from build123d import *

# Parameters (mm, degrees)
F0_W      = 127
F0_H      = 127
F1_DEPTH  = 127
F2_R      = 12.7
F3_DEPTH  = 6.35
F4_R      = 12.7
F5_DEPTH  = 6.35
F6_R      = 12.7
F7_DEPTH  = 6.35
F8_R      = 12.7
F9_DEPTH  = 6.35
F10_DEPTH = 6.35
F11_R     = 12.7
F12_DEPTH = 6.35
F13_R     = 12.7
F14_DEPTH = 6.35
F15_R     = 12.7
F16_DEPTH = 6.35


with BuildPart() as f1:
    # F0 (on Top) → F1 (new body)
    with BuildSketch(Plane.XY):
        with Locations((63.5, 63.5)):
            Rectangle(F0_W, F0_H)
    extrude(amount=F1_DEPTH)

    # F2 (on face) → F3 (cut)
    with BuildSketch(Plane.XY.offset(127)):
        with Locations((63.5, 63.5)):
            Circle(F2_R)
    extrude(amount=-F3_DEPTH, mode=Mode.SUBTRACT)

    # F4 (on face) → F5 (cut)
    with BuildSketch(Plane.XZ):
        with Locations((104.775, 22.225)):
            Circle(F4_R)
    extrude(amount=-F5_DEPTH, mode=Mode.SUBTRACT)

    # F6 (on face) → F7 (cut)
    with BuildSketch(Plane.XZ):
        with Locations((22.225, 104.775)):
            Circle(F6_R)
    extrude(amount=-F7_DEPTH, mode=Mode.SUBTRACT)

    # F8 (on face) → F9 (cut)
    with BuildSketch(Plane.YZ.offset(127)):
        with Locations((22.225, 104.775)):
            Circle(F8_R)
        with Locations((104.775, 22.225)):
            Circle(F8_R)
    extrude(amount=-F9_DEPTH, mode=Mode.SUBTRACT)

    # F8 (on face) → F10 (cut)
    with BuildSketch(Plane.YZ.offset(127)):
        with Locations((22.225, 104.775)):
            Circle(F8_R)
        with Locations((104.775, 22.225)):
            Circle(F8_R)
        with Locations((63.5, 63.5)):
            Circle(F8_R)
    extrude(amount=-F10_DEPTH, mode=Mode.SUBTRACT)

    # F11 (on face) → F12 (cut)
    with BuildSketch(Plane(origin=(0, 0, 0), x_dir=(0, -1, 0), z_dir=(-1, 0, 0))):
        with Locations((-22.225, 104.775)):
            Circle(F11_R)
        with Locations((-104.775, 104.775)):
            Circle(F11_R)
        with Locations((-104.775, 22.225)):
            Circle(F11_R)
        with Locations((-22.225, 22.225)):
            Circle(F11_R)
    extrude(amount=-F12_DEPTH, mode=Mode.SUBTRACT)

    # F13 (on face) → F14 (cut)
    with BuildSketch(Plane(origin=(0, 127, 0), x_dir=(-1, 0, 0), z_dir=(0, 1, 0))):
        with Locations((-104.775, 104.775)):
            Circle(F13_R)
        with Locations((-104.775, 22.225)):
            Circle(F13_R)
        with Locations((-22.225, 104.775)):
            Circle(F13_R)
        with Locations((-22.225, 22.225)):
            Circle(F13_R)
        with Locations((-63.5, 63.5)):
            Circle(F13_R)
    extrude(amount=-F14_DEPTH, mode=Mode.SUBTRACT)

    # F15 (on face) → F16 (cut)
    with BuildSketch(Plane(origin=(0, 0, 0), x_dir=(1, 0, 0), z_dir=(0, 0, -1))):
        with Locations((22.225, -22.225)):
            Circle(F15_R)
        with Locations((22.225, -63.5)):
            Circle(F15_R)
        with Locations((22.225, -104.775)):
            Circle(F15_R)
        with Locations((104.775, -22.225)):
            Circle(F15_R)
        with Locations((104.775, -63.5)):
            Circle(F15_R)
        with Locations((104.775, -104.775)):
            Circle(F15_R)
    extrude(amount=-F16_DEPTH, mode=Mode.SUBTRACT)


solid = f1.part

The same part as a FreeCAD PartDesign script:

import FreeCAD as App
import Part
import Sketcher

V = App.Vector
Q = App.Units.Quantity


def add_polygon(sketch, points):
    """Adds a closed chain of lines whose ends are joined by coincident constraints."""
    first, n = sketch.GeometryCount, len(points)
    for a, b in zip(points, points[1:] + points[:1]):
        sketch.addGeometry(Part.LineSegment(App.Vector(*a, 0), App.Vector(*b, 0)), False)
    for i in range(n):
        sketch.addConstraint(Sketcher.Constraint("Coincident", first + i, 2, first + (i + 1) % n, 1))

doc = App.newDocument("Part")
params = doc.addObject("Spreadsheet::Sheet", "Params")
for row, (alias, value) in enumerate([
    ("sketch1_width", "5 in"),
    ("pad1_length", "5 in"),
    ("sketch2_diameter", "1 in"),
    ("pocket1_length", "0.25 in"),
    ("sketch3_diameter", "1 in"),
    ("pocket2_length", "0.25 in"),
    ("sketch4_diameter", "1 in"),
    ("pocket3_length", "0.25 in"),
    ("sketch5_diameter", "1 in"),
    ("pocket4_length", "0.25 in"),
    ("sketch6_diameter", "1 in"),
    ("pocket5_length", "0.25 in"),
    ("sketch7_diameter", "1 in"),
    ("pocket6_length", "0.25 in"),
    ("sketch8_diameter", "1 in"),
    ("pocket7_length", "0.25 in"),
    ("sketch9_diameter", "1 in"),
    ("pocket8_length", "0.25 in"),
], start=1):
    params.set(f"A{row}", alias)
    params.set(f"B{row}", "=" + value)
    params.setAlias(f"B{row}", alias)

body = doc.addObject("PartDesign::Body", "Body")

# Sketch on XY plane
sketch1 = doc.addObject("Sketcher::SketchObject", "Sketch")
body.addObject(sketch1)
sketch1.AttachmentSupport = (doc.XY_Plane, [""])
sketch1.MapMode = "FlatFace"
add_polygon(sketch1, [(0, 127), (0, 0), (127, 0), (127, 127)])  # lines 0-3
sketch1.addConstraint([
    Sketcher.Constraint("Vertical", 0),
    Sketcher.Constraint("Horizontal", 1),
    Sketcher.Constraint("Vertical", 2),
    Sketcher.Constraint("Horizontal", 3),
    Sketcher.Constraint("Coincident", 0, 2, -1, 1),
    Sketcher.Constraint("Equal", 3, 0),
    Sketcher.Constraint("DistanceX", 1, 1, 1, 2, Q("5 in")),
])
sketch1.setExpression("Constraints[10]", "Params.sketch1_width")
pad1 = doc.addObject("PartDesign::Pad", "Pad")
body.addObject(pad1)
pad1.Profile = sketch1
pad1.setExpression("Length", "Params.pad1_length")

# Sketch on XY plane
sketch2 = doc.addObject("Sketcher::SketchObject", "Sketch001")
body.addObject(sketch2)
sketch2.AttachmentSupport = (doc.XY_Plane, [""])
sketch2.MapMode = "FlatFace"
sketch2.AttachmentOffset = App.Placement(V(0, 0, 5 * 25.4), App.Rotation())
sketch2.addGeometry(Part.Circle(V(64, 64, 0), V(0, 0, 1), 13), False)
sketch2.addConstraint([
    Sketcher.Constraint("Diameter", 0, Q("1 in")),
    Sketcher.Constraint("DistanceX", -1, 1, 0, 3, Q("2.5 in")),
    Sketcher.Constraint("DistanceY", -1, 1, 0, 3, Q("2.5 in")),
])
sketch2.setExpression("Constraints[0]", "Params.sketch2_diameter")
pocket1 = doc.addObject("PartDesign::Pocket", "Pocket")
body.addObject(pocket1)
pocket1.Profile = sketch2
pocket1.setExpression("Length", "Params.pocket1_length")

# Sketch on XZ plane
sketch3 = doc.addObject("Sketcher::SketchObject", "Sketch002")
body.addObject(sketch3)
sketch3.AttachmentSupport = (doc.XZ_Plane, [""])
sketch3.MapMode = "FlatFace"
sketch3.addGeometry(Part.Circle(V(105, 22, 0), V(0, 0, 1), 13), False)
sketch3.addConstraint([
    Sketcher.Constraint("Diameter", 0, Q("1 in")),
    Sketcher.Constraint("DistanceX", -1, 1, 0, 3, Q("4.125 in")),
    Sketcher.Constraint("DistanceY", -1, 1, 0, 3, Q("0.875 in")),
])
sketch3.setExpression("Constraints[0]", "Params.sketch3_diameter")
pocket2 = doc.addObject("PartDesign::Pocket", "Pocket001")
body.addObject(pocket2)
pocket2.Profile = sketch3
pocket2.setExpression("Length", "Params.pocket2_length")

# Sketch on XZ plane
sketch4 = doc.addObject("Sketcher::SketchObject", "Sketch003")
body.addObject(sketch4)
sketch4.AttachmentSupport = (doc.XZ_Plane, [""])
sketch4.MapMode = "FlatFace"
sketch4.addGeometry(Part.Circle(V(22, 105, 0), V(0, 0, 1), 13), False)
sketch4.addConstraint([
    Sketcher.Constraint("Diameter", 0, Q("1 in")),
    Sketcher.Constraint("DistanceX", -1, 1, 0, 3, Q("0.875 in")),
    Sketcher.Constraint("DistanceY", -1, 1, 0, 3, Q("4.125 in")),
])
sketch4.setExpression("Constraints[0]", "Params.sketch4_diameter")
pocket3 = doc.addObject("PartDesign::Pocket", "Pocket002")
body.addObject(pocket3)
pocket3.Profile = sketch4
pocket3.setExpression("Length", "Params.pocket3_length")

# Sketch on YZ plane
sketch5 = doc.addObject("Sketcher::SketchObject", "Sketch004")
body.addObject(sketch5)
sketch5.AttachmentSupport = (doc.YZ_Plane, [""])
sketch5.MapMode = "FlatFace"
sketch5.AttachmentOffset = App.Placement(V(0, 0, 5 * 25.4), App.Rotation())
sketch5.addGeometry([
    Part.Circle(V(22, 105, 0), V(0, 0, 1), 13),
    Part.Circle(V(105, 22, 0), V(0, 0, 1), 13),
], False)
sketch5.addConstraint([
    Sketcher.Constraint("Equal", 0, 1),
    Sketcher.Constraint("Diameter", 0, Q("1 in")),
    Sketcher.Constraint("DistanceX", 0, 3, 1, 3, Q("3.25 in")),
    Sketcher.Constraint("DistanceY", 1, 3, 0, 3, Q("3.25 in")),
    Sketcher.Constraint("DistanceX", -1, 1, 0, 3, Q("0.875 in")),
    Sketcher.Constraint("DistanceY", -1, 1, 0, 3, Q("4.125 in")),
])
sketch5.setExpression("Constraints[1]", "Params.sketch5_diameter")
pocket4 = doc.addObject("PartDesign::Pocket", "Pocket003")
body.addObject(pocket4)
pocket4.Profile = sketch5
pocket4.setExpression("Length", "Params.pocket4_length")

# Sketch on YZ plane
sketch6 = doc.addObject("Sketcher::SketchObject", "Sketch005")
body.addObject(sketch6)
sketch6.AttachmentSupport = (doc.YZ_Plane, [""])
sketch6.MapMode = "FlatFace"
sketch6.AttachmentOffset = App.Placement(V(0, 0, 5 * 25.4), App.Rotation())
sketch6.addGeometry([
    Part.Circle(V(22, 105, 0), V(0, 0, 1), 13),
    Part.Circle(V(105, 22, 0), V(0, 0, 1), 13),
    Part.Circle(V(64, 64, 0), V(0, 0, 1), 13),
], False)
sketch6.addConstraint([
    Sketcher.Constraint("Equal", 0, 1),
    Sketcher.Constraint("Equal", 1, 2),
    Sketcher.Constraint("Diameter", 0, Q("1 in")),
    Sketcher.Constraint("DistanceX", -1, 1, 2, 3, Q("2.5 in")),
    Sketcher.Constraint("DistanceY", -1, 1, 2, 3, Q("2.5 in")),
    Sketcher.Constraint("DistanceX", 0, 3, 1, 3, Q("3.25 in")),
    Sketcher.Constraint("DistanceY", 1, 3, 0, 3, Q("3.25 in")),
    Sketcher.Constraint("DistanceX", -1, 1, 0, 3, Q("0.875 in")),
    Sketcher.Constraint("DistanceY", -1, 1, 0, 3, Q("4.125 in")),
])
sketch6.setExpression("Constraints[2]", "Params.sketch6_diameter")
pocket5 = doc.addObject("PartDesign::Pocket", "Pocket004")
body.addObject(pocket5)
pocket5.Profile = sketch6
pocket5.setExpression("Length", "Params.pocket5_length")

# Sketch on YZ plane
sketch7 = doc.addObject("Sketcher::SketchObject", "Sketch006")
body.addObject(sketch7)
sketch7.AttachmentSupport = (doc.YZ_Plane, [""])
sketch7.MapMode = "FlatFace"
sketch7.addGeometry([
    Part.Circle(V(22, 105, 0), V(0, 0, 1), 13),
    Part.Circle(V(105, 105, 0), V(0, 0, 1), 13),
    Part.Circle(V(105, 22, 0), V(0, 0, 1), 13),
    Part.Circle(V(22, 22, 0), V(0, 0, 1), 13),
], False)
sketch7.addConstraint([
    Sketcher.Constraint("Equal", 0, 1),
    Sketcher.Constraint("Equal", 1, 2),
    Sketcher.Constraint("Equal", 2, 3),
    Sketcher.Constraint("Horizontal", 0, 3, 1, 3),
    Sketcher.Constraint("Horizontal", 2, 3, 3, 3),
    Sketcher.Constraint("Vertical", 1, 3, 2, 3),
    Sketcher.Constraint("Vertical", 0, 3, 3, 3),
    Sketcher.Constraint("Diameter", 0, Q("1 in")),
    Sketcher.Constraint("DistanceX", 0, 3, 1, 3, Q("3.25 in")),
    Sketcher.Constraint("DistanceY", 2, 3, 1, 3, Q("3.25 in")),
    Sketcher.Constraint("DistanceX", -1, 1, 0, 3, Q("0.875 in")),
    Sketcher.Constraint("DistanceY", -1, 1, 0, 3, Q("4.125 in")),
])
sketch7.setExpression("Constraints[7]", "Params.sketch7_diameter")
pocket6 = doc.addObject("PartDesign::Pocket", "Pocket005")
body.addObject(pocket6)
pocket6.Profile = sketch7
pocket6.setExpression("Length", "Params.pocket6_length")
pocket6.Reversed = True

# Sketch on XZ plane
sketch8 = doc.addObject("Sketcher::SketchObject", "Sketch007")
body.addObject(sketch8)
sketch8.AttachmentSupport = (doc.XZ_Plane, [""])
sketch8.MapMode = "FlatFace"
sketch8.AttachmentOffset = App.Placement(V(0, 0, -5 * 25.4), App.Rotation())
sketch8.addGeometry([
    Part.Circle(V(105, 105, 0), V(0, 0, 1), 13),  # 0
    Part.Circle(V(105, 22, 0), V(0, 0, 1), 13),  # 1
    Part.Circle(V(22, 105, 0), V(0, 0, 1), 13),  # 2
    Part.Circle(V(22, 22, 0), V(0, 0, 1), 13),  # 3
    Part.Circle(V(64, 64, 0), V(0, 0, 1), 13),  # 4
], False)
sketch8.addConstraint([
    Sketcher.Constraint("Equal", 0, 1),
    Sketcher.Constraint("Equal", 1, 2),
    Sketcher.Constraint("Equal", 2, 3),
    Sketcher.Constraint("Equal", 3, 4),
    Sketcher.Constraint("Horizontal", 0, 3, 2, 3),
    Sketcher.Constraint("Horizontal", 1, 3, 3, 3),
    Sketcher.Constraint("Vertical", 0, 3, 1, 3),
    Sketcher.Constraint("Vertical", 2, 3, 3, 3),
    Sketcher.Constraint("Diameter", 0, Q("1 in")),
    Sketcher.Constraint("DistanceX", -1, 1, 4, 3, Q("2.5 in")),
    Sketcher.Constraint("DistanceY", -1, 1, 4, 3, Q("2.5 in")),
    Sketcher.Constraint("DistanceY", 1, 3, 0, 3, Q("3.25 in")),
    Sketcher.Constraint("DistanceX", 2, 3, 0, 3, Q("3.25 in")),
    Sketcher.Constraint("DistanceX", -1, 1, 0, 3, Q("4.125 in")),
    Sketcher.Constraint("DistanceY", -1, 1, 0, 3, Q("4.125 in")),
])
sketch8.setExpression("Constraints[8]", "Params.sketch8_diameter")
pocket7 = doc.addObject("PartDesign::Pocket", "Pocket006")
body.addObject(pocket7)
pocket7.Profile = sketch8
pocket7.setExpression("Length", "Params.pocket7_length")
pocket7.Reversed = True

# Sketch on XY plane
sketch9 = doc.addObject("Sketcher::SketchObject", "Sketch008")
body.addObject(sketch9)
sketch9.AttachmentSupport = (doc.XY_Plane, [""])
sketch9.MapMode = "FlatFace"
sketch9.addGeometry([
    Part.Circle(V(22, 22, 0), V(0, 0, 1), 13),  # 0
    Part.Circle(V(22, 64, 0), V(0, 0, 1), 13),  # 1
    Part.Circle(V(22, 105, 0), V(0, 0, 1), 13),  # 2
    Part.Circle(V(105, 22, 0), V(0, 0, 1), 13),  # 3
    Part.Circle(V(105, 64, 0), V(0, 0, 1), 13),  # 4
    Part.Circle(V(105, 105, 0), V(0, 0, 1), 13),  # 5
], False)
sketch9.addConstraint([
    Sketcher.Constraint("Equal", 0, 1),
    Sketcher.Constraint("Equal", 1, 2),
    Sketcher.Constraint("Equal", 2, 3),
    Sketcher.Constraint("Equal", 3, 4),
    Sketcher.Constraint("Equal", 4, 5),
    Sketcher.Constraint("Horizontal", 0, 3, 3, 3),
    Sketcher.Constraint("Horizontal", 1, 3, 4, 3),
    Sketcher.Constraint("Horizontal", 2, 3, 5, 3),
    Sketcher.Constraint("Vertical", 0, 3, 1, 3),
    Sketcher.Constraint("Vertical", 1, 3, 2, 3),
    Sketcher.Constraint("Vertical", 3, 3, 4, 3),
    Sketcher.Constraint("Vertical", 4, 3, 5, 3),
    Sketcher.Constraint("Diameter", 0, Q("1 in")),
    Sketcher.Constraint("DistanceY", -1, 1, 1, 3, Q("2.5 in")),
    Sketcher.Constraint("DistanceY", 0, 3, 2, 3, Q("3.25 in")),
    Sketcher.Constraint("DistanceX", 0, 3, 3, 3, Q("3.25 in")),
    Sketcher.Constraint("DistanceX", -1, 1, 0, 3, Q("0.875 in")),
    Sketcher.Constraint("DistanceY", -1, 1, 0, 3, Q("0.875 in")),
])
sketch9.setExpression("Constraints[12]", "Params.sketch9_diameter")
pocket8 = doc.addObject("PartDesign::Pocket", "Pocket007")
body.addObject(pocket8)
pocket8.Profile = sketch9
pocket8.setExpression("Length", "Params.pocket8_length")
pocket8.Reversed = True

doc.recompute()
